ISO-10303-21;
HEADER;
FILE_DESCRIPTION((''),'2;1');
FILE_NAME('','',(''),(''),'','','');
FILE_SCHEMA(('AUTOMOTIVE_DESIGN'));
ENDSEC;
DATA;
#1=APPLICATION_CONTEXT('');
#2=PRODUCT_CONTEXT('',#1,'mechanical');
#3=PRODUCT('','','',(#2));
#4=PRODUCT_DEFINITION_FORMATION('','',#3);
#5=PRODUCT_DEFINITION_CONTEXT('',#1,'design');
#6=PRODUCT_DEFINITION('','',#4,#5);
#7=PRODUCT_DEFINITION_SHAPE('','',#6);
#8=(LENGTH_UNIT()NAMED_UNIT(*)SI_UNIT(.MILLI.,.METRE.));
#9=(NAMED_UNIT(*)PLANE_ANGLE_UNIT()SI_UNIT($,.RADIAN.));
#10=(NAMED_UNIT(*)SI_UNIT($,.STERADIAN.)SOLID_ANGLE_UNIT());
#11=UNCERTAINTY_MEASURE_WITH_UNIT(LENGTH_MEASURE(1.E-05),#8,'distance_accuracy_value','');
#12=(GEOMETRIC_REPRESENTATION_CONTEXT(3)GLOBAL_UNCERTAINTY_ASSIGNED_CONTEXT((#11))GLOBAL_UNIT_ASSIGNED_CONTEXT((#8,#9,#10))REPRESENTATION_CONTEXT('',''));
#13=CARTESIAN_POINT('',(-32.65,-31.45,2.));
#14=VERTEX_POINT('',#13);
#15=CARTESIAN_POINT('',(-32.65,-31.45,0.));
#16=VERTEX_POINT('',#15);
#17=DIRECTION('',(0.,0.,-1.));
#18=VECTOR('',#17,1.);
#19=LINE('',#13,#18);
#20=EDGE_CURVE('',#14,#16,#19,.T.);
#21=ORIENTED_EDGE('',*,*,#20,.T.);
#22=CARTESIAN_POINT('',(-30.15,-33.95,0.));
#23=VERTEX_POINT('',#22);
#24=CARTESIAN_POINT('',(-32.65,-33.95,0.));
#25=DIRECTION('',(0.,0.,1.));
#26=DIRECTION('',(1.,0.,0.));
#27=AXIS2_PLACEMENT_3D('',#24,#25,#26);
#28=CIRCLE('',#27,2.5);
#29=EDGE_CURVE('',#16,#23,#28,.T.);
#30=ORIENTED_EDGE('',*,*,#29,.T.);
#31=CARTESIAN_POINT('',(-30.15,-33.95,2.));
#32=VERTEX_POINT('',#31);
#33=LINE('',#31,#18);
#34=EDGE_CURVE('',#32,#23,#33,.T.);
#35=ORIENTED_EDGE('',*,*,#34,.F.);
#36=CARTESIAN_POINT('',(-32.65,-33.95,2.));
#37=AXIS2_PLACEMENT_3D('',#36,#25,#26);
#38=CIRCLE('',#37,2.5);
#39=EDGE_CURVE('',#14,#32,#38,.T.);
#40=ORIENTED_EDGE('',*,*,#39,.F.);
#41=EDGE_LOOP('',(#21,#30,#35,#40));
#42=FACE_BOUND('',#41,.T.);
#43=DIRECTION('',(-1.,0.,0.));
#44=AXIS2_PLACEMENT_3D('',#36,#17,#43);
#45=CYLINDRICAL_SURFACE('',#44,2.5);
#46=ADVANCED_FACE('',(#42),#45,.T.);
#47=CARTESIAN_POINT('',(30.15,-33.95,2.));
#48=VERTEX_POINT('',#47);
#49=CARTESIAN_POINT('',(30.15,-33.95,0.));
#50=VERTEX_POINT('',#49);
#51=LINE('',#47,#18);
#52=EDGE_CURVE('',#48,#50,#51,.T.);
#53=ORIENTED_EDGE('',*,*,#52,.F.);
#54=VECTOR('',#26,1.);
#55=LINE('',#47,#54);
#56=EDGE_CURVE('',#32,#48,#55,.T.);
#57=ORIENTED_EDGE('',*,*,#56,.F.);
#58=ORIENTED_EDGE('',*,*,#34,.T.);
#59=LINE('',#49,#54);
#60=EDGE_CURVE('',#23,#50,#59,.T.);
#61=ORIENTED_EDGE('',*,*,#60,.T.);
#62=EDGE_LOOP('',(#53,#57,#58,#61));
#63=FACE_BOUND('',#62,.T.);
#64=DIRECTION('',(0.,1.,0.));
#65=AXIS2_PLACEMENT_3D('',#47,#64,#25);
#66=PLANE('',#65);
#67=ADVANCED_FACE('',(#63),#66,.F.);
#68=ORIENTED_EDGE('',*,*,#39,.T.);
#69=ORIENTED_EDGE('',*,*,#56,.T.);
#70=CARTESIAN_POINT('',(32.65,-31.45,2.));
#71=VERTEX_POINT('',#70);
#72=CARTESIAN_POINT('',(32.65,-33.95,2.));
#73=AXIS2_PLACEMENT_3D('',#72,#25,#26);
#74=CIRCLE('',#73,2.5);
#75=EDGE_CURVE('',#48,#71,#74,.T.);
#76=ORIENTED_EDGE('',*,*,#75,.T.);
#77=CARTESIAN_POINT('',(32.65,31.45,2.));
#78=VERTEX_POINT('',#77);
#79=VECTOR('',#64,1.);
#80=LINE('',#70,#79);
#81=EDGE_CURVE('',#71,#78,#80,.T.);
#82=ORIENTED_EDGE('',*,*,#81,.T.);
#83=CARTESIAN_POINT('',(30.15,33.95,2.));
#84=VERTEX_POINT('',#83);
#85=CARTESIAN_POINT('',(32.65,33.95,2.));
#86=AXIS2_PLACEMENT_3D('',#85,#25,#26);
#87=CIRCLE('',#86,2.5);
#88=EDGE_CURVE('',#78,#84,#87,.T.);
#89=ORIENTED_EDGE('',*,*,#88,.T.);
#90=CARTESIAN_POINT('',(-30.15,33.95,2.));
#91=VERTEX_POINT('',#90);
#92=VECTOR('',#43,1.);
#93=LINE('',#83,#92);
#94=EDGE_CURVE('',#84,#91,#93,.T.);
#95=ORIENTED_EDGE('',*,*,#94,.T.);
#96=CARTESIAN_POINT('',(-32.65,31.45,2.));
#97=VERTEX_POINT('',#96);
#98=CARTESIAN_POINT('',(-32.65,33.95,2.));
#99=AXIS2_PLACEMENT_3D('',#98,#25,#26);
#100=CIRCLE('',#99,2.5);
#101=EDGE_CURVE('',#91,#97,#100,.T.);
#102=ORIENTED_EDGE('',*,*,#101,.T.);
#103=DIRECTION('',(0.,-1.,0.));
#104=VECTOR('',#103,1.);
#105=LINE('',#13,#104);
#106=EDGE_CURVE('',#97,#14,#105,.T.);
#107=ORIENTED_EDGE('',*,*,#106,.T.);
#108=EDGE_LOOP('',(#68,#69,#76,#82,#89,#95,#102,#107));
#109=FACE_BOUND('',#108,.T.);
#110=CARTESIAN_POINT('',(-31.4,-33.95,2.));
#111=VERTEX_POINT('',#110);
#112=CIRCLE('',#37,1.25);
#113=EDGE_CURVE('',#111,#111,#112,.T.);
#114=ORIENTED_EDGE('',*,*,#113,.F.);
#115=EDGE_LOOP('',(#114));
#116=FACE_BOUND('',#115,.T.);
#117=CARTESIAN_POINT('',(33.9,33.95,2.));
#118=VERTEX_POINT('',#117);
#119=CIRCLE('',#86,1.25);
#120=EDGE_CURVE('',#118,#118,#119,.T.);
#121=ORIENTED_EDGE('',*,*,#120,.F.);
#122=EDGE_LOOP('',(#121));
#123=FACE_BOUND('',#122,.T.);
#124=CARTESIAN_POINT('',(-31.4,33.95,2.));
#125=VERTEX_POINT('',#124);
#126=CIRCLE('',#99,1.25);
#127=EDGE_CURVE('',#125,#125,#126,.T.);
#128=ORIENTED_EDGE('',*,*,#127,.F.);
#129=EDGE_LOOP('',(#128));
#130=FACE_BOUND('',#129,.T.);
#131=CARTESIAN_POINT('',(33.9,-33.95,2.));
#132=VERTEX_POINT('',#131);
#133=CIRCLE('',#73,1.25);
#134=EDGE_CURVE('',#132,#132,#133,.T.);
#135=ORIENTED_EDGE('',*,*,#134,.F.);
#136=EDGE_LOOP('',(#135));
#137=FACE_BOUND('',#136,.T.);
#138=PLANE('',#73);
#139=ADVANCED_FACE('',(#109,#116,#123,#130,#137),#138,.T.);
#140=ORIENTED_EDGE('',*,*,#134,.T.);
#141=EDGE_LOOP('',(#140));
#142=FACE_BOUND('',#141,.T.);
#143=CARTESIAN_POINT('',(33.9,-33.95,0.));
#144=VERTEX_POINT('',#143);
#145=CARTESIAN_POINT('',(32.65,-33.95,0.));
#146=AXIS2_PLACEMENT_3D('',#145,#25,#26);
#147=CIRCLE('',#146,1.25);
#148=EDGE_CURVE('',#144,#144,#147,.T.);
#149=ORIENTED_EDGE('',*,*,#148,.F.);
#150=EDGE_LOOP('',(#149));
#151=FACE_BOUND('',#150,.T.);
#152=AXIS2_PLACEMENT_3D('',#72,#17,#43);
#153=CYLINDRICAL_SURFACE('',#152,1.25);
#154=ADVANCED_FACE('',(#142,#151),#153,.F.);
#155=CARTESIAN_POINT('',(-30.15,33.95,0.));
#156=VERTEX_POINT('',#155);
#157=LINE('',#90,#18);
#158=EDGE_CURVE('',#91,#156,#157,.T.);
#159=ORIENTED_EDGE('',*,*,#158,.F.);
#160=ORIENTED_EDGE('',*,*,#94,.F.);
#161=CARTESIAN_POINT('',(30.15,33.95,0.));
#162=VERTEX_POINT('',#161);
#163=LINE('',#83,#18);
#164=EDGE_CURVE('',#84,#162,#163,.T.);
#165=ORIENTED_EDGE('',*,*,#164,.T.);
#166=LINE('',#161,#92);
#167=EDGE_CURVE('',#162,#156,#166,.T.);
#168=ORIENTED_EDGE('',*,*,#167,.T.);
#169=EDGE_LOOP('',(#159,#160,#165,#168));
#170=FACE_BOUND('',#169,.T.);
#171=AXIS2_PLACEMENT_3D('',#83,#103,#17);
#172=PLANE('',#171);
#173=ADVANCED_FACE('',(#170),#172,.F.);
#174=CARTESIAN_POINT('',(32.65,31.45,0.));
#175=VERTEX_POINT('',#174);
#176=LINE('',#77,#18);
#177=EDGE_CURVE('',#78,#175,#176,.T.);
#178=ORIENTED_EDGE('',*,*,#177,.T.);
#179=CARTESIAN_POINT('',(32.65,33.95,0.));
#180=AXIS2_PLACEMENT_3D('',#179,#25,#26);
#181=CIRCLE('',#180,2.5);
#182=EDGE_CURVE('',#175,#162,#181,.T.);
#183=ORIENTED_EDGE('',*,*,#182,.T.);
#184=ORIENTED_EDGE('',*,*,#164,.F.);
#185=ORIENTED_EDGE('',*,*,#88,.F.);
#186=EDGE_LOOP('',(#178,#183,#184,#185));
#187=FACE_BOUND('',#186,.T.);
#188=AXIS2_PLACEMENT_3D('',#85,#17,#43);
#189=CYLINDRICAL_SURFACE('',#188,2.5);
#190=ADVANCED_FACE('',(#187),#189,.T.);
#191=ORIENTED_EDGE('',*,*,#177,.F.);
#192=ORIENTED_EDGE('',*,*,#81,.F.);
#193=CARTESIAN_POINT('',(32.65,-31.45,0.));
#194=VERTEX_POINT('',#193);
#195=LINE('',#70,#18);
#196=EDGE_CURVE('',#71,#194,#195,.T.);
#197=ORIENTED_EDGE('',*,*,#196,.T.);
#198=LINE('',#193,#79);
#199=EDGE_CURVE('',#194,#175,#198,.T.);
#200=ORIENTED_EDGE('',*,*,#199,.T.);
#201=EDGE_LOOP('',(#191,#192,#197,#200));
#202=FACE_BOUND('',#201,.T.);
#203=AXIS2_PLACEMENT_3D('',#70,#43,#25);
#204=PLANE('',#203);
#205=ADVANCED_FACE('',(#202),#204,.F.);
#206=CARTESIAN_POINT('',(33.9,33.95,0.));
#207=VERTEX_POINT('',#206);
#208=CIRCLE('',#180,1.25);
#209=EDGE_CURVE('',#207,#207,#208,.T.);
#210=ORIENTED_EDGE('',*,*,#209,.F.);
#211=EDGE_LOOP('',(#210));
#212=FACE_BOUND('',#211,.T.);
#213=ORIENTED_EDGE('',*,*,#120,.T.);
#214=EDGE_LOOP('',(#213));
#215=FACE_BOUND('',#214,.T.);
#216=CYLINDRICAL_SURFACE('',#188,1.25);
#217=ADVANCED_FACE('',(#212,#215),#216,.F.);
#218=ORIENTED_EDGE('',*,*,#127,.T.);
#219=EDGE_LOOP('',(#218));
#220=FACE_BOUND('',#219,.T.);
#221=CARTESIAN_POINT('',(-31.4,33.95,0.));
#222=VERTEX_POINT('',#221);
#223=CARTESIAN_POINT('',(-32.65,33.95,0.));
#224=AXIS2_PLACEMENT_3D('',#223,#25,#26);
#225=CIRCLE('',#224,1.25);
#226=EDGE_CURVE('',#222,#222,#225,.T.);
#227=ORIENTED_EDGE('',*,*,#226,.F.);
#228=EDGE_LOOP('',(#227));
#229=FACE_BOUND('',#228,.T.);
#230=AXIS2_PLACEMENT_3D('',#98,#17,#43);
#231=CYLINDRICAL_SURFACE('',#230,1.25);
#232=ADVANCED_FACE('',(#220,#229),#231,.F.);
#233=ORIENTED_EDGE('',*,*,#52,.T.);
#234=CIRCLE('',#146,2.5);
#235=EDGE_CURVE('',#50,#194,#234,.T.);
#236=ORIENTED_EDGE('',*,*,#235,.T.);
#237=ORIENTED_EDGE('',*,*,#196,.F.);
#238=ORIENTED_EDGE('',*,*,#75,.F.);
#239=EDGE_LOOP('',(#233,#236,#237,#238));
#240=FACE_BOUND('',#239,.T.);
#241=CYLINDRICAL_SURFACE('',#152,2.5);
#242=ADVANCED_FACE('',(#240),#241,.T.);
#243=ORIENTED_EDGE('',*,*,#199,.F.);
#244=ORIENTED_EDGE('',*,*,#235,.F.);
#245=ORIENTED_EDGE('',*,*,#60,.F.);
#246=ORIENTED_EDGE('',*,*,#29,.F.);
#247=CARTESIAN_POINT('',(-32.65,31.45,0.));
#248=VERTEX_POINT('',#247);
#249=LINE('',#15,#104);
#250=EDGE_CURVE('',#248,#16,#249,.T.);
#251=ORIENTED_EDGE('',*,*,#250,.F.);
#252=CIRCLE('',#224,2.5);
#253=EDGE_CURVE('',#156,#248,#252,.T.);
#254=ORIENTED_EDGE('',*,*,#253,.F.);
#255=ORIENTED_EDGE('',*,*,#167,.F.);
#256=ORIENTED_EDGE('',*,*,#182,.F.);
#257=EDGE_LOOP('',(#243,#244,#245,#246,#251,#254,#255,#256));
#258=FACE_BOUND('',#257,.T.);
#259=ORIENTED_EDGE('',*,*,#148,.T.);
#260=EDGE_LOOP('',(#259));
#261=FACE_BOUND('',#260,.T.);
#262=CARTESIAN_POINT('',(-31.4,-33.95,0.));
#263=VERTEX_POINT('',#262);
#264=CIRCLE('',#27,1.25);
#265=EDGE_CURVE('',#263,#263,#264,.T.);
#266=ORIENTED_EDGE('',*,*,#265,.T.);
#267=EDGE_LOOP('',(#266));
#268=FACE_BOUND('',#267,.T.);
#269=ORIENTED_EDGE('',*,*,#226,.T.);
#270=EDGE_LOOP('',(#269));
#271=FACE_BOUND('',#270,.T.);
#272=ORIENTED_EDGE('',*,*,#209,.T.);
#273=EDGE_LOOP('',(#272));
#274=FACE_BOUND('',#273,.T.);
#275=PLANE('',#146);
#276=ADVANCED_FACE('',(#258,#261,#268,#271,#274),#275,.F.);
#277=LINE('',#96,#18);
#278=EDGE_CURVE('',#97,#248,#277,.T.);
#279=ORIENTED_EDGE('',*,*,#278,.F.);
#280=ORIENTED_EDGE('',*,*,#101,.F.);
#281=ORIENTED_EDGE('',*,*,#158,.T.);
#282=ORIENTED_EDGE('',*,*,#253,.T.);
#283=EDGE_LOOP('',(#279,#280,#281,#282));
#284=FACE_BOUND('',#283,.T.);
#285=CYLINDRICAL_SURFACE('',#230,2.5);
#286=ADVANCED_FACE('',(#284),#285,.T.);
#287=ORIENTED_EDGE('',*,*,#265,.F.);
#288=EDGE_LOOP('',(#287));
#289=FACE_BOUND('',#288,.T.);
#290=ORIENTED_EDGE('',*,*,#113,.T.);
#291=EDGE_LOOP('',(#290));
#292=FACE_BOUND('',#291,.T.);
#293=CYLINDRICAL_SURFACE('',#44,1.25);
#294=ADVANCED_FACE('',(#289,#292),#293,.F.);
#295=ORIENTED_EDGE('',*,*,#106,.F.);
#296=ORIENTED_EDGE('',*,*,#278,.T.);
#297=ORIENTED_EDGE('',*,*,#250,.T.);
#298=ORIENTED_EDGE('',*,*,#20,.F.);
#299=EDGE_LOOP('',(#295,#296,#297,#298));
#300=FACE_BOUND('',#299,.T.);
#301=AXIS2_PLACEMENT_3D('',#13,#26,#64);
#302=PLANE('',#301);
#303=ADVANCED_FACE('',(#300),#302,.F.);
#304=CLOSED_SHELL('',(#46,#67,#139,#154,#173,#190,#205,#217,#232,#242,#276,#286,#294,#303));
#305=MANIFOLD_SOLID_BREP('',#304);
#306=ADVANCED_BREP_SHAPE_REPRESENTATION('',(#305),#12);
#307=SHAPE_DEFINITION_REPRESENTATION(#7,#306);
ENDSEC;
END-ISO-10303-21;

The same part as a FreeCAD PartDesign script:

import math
import FreeCAD as App
import Part
import Sketcher

V = App.Vector
Q = App.Units.Quantity

doc = App.newDocument("Part")
body = doc.addObject("PartDesign::Body", "Body")

sketch1 = body.newObject("Sketcher::SketchObject", "Sketch")
sketch1.AttachmentSupport = (doc.getObject("XY_Plane"), [""])
sketch1.MapMode = "FlatFace"
sketch1.addGeometry([
    Part.LineSegment(V(30.1, 34, 0), V(-30.1, 34, 0)),
    Part.ArcOfCircle(Part.Circle(V(-32.6, 34, 0), V(0, 0, 1), 2.5), math.radians(0), math.radians(270)),
    Part.LineSegment(V(-32.6, 31.4, 0), V(-32.6, -31.4, 0)),
    Part.ArcOfCircle(Part.Circle(V(-32.6, -34, 0), V(0, 0, 1), 2.5), math.radians(90), math.radians(360)),
    Part.LineSegment(V(-30.1, -34, 0), V(30.1, -34, 0)),
    Part.ArcOfCircle(Part.Circle(V(32.6, -34, 0), V(0, 0, 1), 2.5), math.radians(180), math.radians(450)),
    Part.LineSegment(V(32.6, -31.4, 0), V(32.6, 31.4, 0)),
    Part.ArcOfCircle(Part.Circle(V(32.6, 34, 0), V(0, 0, 1), 2.5), math.radians(-90), math.radians(180)),
    Part.Circle(V(-32.6, -34, 0), V(0, 0, 1), 1.2),
    Part.Circle(V(32.6, -34, 0), V(0, 0, 1), 1.2),
    Part.Circle(V(-32.6, 34, 0), V(0, 0, 1), 1.2),
    Part.Circle(V(32.6, 34, 0), V(0, 0, 1), 1.2),
], False)
sketch1.addConstraint([
    Sketcher.Constraint("Coincident", 0, 2, 1, 1),
    Sketcher.Constraint("Coincident", 1, 2, 2, 1),
    Sketcher.Constraint("Coincident", 2, 2, 3, 1),
    Sketcher.Constraint("Coincident", 3, 2, 4, 1),
    Sketcher.Constraint("Coincident", 4, 2, 5, 1),
    Sketcher.Constraint("Coincident", 5, 2, 6, 1),
    Sketcher.Constraint("Coincident", 6, 2, 7, 1),
    Sketcher.Constraint("Coincident", 7, 2, 0, 1),
    Sketcher.Constraint("Horizontal", 0),
    Sketcher.Constraint("Vertical", 2),
    Sketcher.Constraint("Horizontal", 4),
    Sketcher.Constraint("Vertical", 6),
    Sketcher.Constraint("Coincident", 8, 3, 3, 3),
    Sketcher.Constraint("Coincident", 9, 3, 5, 3),
    Sketcher.Constraint("Coincident", 10, 3, 1, 3),
    Sketcher.Constraint("Coincident", 11, 3, 7, 3),
    Sketcher.Constraint("Equal", 1, 3),
    Sketcher.Constraint("Equal", 3, 5),
    Sketcher.Constraint("Equal", 5, 7),
    Sketcher.Constraint("Equal", 8, 9),
    Sketcher.Constraint("Equal", 9, 10),
    Sketcher.Constraint("Equal", 10, 11),
    Sketcher.Constraint("Symmetric", 1, 3, 5, 3, -1, 1),
    Sketcher.Constraint("Symmetric", 3, 3, 7, 3, -1, 1),
    Sketcher.Constraint("Symmetric", 3, 3, 5, 3, -2),
    Sketcher.Constraint("Horizontal", 11, 3, 0, 2),
    Sketcher.Constraint("Horizontal", 9, 3, 3, 2),
    Sketcher.Constraint("Vertical", 10, 3, 1, 2),
    Sketcher.Constraint("Vertical", 11, 3, 5, 2),
    Sketcher.Constraint("Diameter", 8, Q("2.5 mm")),
    Sketcher.Constraint("Radius", 1, Q("2.5 mm")),
    Sketcher.Constraint("DistanceX", 0, 2, 0, 1, Q("60.3 mm")),
    Sketcher.Constraint("DistanceY", 2, 2, 2, 1, Q("62.9 mm")),
])
pad1 = body.newObject("PartDesign::Pad", "Pad")
pad1.Profile = sketch1
pad1.Length = 2

doc.recompute()
